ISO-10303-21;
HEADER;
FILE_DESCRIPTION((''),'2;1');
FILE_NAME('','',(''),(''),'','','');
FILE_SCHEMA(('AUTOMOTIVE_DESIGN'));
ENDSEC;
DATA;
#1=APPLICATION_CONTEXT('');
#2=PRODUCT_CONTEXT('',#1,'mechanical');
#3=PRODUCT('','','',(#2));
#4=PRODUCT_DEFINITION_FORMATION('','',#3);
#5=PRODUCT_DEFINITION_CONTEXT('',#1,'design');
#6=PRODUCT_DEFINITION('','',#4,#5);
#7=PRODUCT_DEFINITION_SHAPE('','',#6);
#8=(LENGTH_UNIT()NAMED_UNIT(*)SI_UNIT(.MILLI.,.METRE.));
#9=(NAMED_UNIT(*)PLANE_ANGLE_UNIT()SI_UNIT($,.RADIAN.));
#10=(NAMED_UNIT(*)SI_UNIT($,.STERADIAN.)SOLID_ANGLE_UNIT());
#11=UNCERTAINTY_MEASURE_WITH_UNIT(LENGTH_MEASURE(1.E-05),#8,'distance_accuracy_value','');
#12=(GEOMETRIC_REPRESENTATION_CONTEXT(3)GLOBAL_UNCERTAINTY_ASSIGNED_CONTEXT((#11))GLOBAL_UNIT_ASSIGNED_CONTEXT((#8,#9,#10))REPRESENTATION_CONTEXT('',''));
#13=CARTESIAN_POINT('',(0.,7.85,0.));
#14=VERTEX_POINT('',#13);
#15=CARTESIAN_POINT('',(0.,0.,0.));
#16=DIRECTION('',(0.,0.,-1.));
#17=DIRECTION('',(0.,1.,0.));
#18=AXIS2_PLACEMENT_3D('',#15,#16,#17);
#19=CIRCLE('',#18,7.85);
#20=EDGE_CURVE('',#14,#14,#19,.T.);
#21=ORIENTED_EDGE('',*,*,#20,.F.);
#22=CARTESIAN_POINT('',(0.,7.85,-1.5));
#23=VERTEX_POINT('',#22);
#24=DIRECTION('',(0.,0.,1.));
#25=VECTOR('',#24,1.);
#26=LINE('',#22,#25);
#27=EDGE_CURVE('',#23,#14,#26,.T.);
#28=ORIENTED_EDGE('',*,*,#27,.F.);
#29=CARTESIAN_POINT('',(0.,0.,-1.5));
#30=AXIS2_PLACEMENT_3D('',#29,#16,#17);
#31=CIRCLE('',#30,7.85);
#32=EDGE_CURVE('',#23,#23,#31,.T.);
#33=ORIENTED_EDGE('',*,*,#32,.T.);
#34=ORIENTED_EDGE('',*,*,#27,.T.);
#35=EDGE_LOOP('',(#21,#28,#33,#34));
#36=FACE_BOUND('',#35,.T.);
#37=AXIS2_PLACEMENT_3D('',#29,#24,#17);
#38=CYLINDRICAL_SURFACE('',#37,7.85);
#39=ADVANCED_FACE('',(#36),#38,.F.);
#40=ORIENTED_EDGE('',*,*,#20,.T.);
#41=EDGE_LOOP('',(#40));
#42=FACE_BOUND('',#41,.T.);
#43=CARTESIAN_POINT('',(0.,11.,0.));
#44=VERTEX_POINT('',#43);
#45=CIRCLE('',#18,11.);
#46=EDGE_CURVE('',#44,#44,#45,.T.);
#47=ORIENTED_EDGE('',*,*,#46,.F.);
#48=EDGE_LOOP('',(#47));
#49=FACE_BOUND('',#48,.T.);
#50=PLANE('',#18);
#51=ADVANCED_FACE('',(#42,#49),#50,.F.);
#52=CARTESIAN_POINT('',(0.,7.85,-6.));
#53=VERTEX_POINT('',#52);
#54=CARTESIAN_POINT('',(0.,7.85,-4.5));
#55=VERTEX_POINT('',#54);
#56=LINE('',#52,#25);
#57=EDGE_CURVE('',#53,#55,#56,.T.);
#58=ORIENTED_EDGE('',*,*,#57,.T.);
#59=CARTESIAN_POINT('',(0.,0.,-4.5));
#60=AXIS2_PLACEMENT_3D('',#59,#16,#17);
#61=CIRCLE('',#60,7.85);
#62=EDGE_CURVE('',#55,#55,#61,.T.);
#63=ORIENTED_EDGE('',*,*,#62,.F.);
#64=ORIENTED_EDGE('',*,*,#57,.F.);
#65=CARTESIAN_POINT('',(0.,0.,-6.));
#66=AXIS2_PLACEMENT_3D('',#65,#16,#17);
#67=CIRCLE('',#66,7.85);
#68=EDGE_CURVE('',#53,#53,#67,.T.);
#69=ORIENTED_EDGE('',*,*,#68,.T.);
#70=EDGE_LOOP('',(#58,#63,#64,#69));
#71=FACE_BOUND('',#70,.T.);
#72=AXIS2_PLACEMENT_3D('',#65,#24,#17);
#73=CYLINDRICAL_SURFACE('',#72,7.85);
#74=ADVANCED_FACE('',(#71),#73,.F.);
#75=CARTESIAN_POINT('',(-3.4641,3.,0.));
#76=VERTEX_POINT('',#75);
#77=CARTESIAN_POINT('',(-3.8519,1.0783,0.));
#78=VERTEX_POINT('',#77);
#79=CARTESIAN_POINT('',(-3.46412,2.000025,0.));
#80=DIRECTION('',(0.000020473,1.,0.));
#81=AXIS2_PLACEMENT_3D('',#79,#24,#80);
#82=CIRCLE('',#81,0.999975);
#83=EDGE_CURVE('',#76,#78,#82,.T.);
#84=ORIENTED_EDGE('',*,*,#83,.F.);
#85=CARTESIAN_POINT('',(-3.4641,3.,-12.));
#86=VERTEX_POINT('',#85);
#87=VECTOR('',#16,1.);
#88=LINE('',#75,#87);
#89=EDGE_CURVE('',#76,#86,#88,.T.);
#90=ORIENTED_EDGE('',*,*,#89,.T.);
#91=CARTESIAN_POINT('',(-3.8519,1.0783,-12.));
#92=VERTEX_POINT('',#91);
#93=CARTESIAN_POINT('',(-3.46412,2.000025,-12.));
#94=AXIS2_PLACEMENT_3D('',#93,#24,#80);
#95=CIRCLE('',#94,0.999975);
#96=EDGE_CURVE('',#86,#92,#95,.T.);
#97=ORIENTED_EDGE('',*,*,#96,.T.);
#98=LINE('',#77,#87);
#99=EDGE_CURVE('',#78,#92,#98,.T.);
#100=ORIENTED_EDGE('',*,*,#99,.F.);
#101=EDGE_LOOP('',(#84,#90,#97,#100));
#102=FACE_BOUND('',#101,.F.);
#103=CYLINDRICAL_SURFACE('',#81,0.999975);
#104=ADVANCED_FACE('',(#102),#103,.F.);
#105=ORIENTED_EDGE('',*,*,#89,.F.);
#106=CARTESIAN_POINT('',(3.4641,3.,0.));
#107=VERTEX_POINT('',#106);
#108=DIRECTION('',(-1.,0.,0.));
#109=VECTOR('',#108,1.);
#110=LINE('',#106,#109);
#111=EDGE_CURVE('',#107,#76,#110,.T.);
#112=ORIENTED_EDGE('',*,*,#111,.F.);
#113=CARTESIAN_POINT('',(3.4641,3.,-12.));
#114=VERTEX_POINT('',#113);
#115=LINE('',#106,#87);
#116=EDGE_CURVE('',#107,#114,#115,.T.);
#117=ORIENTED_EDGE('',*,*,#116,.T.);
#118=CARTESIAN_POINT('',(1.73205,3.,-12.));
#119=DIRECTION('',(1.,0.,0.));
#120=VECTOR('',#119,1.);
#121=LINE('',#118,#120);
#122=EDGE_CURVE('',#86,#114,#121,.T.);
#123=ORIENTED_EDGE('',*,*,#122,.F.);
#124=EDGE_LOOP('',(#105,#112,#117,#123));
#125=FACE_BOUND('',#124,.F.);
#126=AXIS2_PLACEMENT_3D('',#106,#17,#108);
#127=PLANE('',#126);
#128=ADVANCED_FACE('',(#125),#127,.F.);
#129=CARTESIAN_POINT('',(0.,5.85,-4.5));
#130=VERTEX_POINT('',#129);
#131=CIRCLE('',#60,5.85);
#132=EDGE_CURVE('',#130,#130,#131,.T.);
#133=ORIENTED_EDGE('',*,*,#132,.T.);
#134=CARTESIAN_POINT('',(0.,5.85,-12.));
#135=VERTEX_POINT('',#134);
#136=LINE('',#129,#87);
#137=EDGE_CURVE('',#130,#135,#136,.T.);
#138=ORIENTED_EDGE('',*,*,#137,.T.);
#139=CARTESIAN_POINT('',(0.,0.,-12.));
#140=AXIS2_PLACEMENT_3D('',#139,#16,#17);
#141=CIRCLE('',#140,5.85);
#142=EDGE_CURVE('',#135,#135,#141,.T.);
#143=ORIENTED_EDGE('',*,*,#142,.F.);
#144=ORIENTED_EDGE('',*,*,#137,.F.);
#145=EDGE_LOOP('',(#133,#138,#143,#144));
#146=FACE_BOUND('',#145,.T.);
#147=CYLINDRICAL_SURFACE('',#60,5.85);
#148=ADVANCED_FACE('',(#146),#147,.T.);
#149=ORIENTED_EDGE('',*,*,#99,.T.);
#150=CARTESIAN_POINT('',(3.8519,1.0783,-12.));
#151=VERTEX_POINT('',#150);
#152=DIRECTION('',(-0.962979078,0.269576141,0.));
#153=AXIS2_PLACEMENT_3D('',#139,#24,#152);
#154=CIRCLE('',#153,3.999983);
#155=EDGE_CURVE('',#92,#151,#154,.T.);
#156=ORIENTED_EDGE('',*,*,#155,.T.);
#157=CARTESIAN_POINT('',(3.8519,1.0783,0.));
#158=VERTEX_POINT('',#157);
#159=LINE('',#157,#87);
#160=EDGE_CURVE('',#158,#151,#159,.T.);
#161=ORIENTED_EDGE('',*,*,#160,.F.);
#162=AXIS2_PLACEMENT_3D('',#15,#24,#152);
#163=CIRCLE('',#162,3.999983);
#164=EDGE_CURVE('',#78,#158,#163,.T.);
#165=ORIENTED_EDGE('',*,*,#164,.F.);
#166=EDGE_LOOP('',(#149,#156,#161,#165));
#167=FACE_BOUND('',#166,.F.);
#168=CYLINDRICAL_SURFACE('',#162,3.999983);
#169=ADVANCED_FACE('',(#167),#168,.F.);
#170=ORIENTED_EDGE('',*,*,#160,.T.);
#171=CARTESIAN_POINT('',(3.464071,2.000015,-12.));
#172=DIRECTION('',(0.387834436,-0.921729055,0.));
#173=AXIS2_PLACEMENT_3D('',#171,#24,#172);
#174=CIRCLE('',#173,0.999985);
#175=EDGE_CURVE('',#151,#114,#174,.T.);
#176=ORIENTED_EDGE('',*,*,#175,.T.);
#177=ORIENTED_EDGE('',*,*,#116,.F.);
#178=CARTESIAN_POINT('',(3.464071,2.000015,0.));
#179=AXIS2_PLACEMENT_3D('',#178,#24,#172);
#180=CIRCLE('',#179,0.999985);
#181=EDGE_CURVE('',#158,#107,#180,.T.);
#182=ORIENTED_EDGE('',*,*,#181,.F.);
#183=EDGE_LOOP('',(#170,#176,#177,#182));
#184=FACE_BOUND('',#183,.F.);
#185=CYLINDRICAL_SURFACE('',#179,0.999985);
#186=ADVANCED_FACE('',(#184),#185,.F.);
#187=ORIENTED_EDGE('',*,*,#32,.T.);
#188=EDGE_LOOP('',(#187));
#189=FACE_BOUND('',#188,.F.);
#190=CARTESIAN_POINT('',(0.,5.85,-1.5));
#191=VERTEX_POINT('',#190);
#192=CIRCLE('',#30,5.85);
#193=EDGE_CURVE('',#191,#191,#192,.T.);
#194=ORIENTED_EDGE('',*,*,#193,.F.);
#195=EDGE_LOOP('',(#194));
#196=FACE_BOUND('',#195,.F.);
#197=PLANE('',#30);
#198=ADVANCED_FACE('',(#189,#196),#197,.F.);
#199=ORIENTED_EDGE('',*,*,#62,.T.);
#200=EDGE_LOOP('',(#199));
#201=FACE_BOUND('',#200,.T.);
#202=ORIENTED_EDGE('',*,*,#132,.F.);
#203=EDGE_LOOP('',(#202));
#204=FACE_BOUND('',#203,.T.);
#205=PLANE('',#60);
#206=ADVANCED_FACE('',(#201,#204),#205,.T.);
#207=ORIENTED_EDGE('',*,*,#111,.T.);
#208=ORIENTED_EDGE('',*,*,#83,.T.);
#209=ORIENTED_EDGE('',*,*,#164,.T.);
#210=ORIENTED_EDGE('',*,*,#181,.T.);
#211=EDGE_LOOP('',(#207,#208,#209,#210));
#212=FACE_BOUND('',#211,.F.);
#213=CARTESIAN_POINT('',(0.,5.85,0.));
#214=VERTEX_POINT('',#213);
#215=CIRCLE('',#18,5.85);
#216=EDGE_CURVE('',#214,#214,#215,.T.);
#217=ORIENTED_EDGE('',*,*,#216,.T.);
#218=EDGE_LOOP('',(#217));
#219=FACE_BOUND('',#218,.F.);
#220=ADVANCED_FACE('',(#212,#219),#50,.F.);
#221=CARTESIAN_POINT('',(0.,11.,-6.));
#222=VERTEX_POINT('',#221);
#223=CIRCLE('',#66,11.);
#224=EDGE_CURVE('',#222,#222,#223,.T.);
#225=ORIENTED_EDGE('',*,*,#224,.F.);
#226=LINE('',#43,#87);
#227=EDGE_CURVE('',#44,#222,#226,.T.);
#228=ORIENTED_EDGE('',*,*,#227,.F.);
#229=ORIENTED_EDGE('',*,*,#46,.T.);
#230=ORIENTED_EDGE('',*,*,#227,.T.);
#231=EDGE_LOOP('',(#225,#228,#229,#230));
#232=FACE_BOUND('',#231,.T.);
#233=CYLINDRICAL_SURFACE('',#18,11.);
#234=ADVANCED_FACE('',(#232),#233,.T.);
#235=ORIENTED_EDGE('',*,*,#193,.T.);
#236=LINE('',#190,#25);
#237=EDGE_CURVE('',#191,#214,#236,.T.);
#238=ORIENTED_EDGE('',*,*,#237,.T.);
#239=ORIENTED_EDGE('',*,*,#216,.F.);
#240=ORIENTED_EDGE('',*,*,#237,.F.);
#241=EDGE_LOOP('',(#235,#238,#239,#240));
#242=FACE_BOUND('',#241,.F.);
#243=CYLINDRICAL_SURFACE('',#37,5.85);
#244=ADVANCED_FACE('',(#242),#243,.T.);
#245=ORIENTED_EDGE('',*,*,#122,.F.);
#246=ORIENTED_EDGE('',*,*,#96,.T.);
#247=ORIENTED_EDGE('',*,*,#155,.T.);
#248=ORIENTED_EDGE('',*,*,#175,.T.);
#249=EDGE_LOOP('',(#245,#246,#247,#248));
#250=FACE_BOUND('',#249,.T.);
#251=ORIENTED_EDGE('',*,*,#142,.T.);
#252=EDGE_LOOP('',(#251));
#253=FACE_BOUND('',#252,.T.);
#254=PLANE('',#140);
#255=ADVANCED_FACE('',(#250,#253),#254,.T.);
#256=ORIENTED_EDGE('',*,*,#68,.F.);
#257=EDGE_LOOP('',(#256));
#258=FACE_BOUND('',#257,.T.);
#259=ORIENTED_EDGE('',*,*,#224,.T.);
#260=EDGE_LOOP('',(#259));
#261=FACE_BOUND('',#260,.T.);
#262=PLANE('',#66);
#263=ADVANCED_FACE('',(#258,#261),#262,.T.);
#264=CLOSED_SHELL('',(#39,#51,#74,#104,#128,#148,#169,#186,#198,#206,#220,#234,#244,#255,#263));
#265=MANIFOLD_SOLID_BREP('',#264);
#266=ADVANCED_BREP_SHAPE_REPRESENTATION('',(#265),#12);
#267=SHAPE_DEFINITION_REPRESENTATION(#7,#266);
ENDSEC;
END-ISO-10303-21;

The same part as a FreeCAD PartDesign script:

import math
import FreeCAD as App
import Part
import Sketcher


def add_polygon(sketch, points):
    """Adds a closed chain of lines whose ends are joined by coincident constraints."""
    first, n = sketch.GeometryCount, len(points)
    for a, b in zip(points, points[1:] + points[:1]):
        sketch.addGeometry(Part.LineSegment(App.Vector(*a, 0), App.Vector(*b, 0)), False)
    for i in range(n):
        sketch.addConstraint(Sketcher.Constraint("Coincident", first + i, 2, first + (i + 1) % n, 1))

doc = App.newDocument("Part")
params = doc.addObject("Spreadsheet::Sheet", "Params")
for row, (alias, value) in enumerate([
    ("sketch1_width", "2 mm"),
    ("sketch1_height", "12 mm"),
    ("sketch1_height2", "6 mm"),
    ("sketch1_width2", "3.35 mm"),
    ("sketch1_width3", "3.15 mm"),
    ("revolution_angle", "360 deg"),
    ("sketch2_radius", "1 mm"),
    ("sketch2_radius2", "4 mm"),
], start=1):
    params.set(f"A{row}", alias)
    params.set(f"B{row}", "=" + value)
    params.setAlias(f"B{row}", alias)

body = doc.addObject("PartDesign::Body", "Body")

sketch1 = body.newObject("Sketcher::SketchObject", "Sketch")
sketch1.AttachmentSupport = (doc.getObject("YZ_Plane"), [""])
sketch1.MapMode = "FlatFace"
add_polygon(sketch1, [(7.85, 0), (7.85, -1.5), (5.85, -1.5), (5.85, 0), (2.5, 0), (2.5, -12), (5.85, -12), (5.85, -4.5), (7.85, -4.5), (7.85, -6), (11, -6), (11, 0)])
sketch1.addConstraint([
    Sketcher.Constraint("Vertical", 0),
    Sketcher.Constraint("Horizontal", 1),
    Sketcher.Constraint("Vertical", 2),
    Sketcher.Constraint("Horizontal", 3),
    Sketcher.Constraint("Vertical", 4),
    Sketcher.Constraint("Horizontal", 5),
    Sketcher.Constraint("Vertical", 6),
    Sketcher.Constraint("Horizontal", 7),
    Sketcher.Constraint("Vertical", 8),
    Sketcher.Constraint("Horizontal", 9),
    Sketcher.Constraint("Vertical", 10),
    Sketcher.Constraint("Horizontal", 11),
    Sketcher.Constraint("PointOnObject", 2, 2, -1),
    Sketcher.Constraint("PointOnObject", 10, 2, -1),
    Sketcher.Constraint("Vertical", 2, 2, 5, 2),
    Sketcher.Constraint("Vertical", 0, 2, 7, 2),
    Sketcher.Constraint("Equal", 2, 8),
    Sketcher.Constraint("DistanceX", 1, 2, 1, 1, 2.0),
    Sketcher.Constraint("DistanceY", 4, 2, 4, 1, 12.0),
    Sketcher.Constraint("DistanceY", 10, 1, 10, 2, 6.0),
    Sketcher.Constraint("DistanceY", 6, 2, 1, 2, 3.0),
    Sketcher.Constraint("DistanceX", -1, 1, 9, 2, 11.0),
    Sketcher.Constraint("DistanceX", 3, 2, 3, 1, 3.35),
    Sketcher.Constraint("DistanceX", 9, 1, 9, 2, 3.15),
])
sketch1.setExpression("Constraints[29]", "Params.sketch1_width")
sketch1.setExpression("Constraints[30]", "Params.sketch1_height")
sketch1.setExpression("Constraints[31]", "Params.sketch1_height2")
sketch1.setExpression("Constraints[34]", "Params.sketch1_width2")
sketch1.setExpression("Constraints[35]", "Params.sketch1_width3")
revolution = body.newObject("PartDesign::Revolution", "Revolution")
revolution.Profile = sketch1
revolution.ReferenceAxis = (sketch1, ["V_Axis"])
revolution.setExpression("Angle", "Params.revolution_angle")

sketch2 = body.newObject("Sketcher::SketchObject", "Sketch001")
sketch2.AttachmentSupport = (doc.getObject("XY_Plane"), [""])
sketch2.MapMode = "FlatFace"
sketch2.addGeometry([
    Part.ArcOfCircle(Part.Circle(App.Vector(3.4641, 2, 0), App.Vector(0, 0, 1), 1), math.radians(-67.181354), math.radians(90)),
    Part.LineSegment(App.Vector(3.4641, 3, 0), App.Vector(-3.4641, 3, 0)),
    Part.ArcOfCircle(Part.Circle(App.Vector(-3.4641, 2, 0), App.Vector(0, 0, 1), 0.99996), math.radians(90), math.radians(247.181354)),
    Part.ArcOfCircle(Part.Circle(App.Vector(0, 0, 0), App.Vector(0, 0, 1), 3.999983), math.radians(164.360954), math.radians(375.639046)),
], False)
sketch2.addConstraint([
    Sketcher.Constraint("Tangent", 0, 2, 1, 1),
    Sketcher.Constraint("Tangent", 1, 2, 2, 1),
    Sketcher.Constraint("Coincident", 2, 2, 3, 1),
    Sketcher.Constraint("Coincident", 3, 2, 0, 1),
    Sketcher.Constraint("Horizontal", 1),
    Sketcher.Constraint("Coincident", 3, 3, -1, 1),
    Sketcher.Constraint("Equal", 0, 2),
    Sketcher.Constraint("Horizontal", 2, 2, 3, 2),
    Sketcher.Constraint("Radius", 0, 1.0),
    Sketcher.Constraint("Radius", 3, 4.0),
    Sketcher.Constraint("DistanceY", -1, 1, 0, 2, 3.0),
    Sketcher.Constraint("DistanceX", 1, 2, 1, 1, 6.9282),
])
sketch2.setExpression("Constraints[8]", "Params.sketch2_radius")
sketch2.setExpression("Constraints[9]", "Params.sketch2_radius2")
pocket1 = body.newObject("PartDesign::Pocket", "Pocket")
pocket1.Profile = sketch2
pocket1.Type = "ThroughAll"

doc.recompute()
